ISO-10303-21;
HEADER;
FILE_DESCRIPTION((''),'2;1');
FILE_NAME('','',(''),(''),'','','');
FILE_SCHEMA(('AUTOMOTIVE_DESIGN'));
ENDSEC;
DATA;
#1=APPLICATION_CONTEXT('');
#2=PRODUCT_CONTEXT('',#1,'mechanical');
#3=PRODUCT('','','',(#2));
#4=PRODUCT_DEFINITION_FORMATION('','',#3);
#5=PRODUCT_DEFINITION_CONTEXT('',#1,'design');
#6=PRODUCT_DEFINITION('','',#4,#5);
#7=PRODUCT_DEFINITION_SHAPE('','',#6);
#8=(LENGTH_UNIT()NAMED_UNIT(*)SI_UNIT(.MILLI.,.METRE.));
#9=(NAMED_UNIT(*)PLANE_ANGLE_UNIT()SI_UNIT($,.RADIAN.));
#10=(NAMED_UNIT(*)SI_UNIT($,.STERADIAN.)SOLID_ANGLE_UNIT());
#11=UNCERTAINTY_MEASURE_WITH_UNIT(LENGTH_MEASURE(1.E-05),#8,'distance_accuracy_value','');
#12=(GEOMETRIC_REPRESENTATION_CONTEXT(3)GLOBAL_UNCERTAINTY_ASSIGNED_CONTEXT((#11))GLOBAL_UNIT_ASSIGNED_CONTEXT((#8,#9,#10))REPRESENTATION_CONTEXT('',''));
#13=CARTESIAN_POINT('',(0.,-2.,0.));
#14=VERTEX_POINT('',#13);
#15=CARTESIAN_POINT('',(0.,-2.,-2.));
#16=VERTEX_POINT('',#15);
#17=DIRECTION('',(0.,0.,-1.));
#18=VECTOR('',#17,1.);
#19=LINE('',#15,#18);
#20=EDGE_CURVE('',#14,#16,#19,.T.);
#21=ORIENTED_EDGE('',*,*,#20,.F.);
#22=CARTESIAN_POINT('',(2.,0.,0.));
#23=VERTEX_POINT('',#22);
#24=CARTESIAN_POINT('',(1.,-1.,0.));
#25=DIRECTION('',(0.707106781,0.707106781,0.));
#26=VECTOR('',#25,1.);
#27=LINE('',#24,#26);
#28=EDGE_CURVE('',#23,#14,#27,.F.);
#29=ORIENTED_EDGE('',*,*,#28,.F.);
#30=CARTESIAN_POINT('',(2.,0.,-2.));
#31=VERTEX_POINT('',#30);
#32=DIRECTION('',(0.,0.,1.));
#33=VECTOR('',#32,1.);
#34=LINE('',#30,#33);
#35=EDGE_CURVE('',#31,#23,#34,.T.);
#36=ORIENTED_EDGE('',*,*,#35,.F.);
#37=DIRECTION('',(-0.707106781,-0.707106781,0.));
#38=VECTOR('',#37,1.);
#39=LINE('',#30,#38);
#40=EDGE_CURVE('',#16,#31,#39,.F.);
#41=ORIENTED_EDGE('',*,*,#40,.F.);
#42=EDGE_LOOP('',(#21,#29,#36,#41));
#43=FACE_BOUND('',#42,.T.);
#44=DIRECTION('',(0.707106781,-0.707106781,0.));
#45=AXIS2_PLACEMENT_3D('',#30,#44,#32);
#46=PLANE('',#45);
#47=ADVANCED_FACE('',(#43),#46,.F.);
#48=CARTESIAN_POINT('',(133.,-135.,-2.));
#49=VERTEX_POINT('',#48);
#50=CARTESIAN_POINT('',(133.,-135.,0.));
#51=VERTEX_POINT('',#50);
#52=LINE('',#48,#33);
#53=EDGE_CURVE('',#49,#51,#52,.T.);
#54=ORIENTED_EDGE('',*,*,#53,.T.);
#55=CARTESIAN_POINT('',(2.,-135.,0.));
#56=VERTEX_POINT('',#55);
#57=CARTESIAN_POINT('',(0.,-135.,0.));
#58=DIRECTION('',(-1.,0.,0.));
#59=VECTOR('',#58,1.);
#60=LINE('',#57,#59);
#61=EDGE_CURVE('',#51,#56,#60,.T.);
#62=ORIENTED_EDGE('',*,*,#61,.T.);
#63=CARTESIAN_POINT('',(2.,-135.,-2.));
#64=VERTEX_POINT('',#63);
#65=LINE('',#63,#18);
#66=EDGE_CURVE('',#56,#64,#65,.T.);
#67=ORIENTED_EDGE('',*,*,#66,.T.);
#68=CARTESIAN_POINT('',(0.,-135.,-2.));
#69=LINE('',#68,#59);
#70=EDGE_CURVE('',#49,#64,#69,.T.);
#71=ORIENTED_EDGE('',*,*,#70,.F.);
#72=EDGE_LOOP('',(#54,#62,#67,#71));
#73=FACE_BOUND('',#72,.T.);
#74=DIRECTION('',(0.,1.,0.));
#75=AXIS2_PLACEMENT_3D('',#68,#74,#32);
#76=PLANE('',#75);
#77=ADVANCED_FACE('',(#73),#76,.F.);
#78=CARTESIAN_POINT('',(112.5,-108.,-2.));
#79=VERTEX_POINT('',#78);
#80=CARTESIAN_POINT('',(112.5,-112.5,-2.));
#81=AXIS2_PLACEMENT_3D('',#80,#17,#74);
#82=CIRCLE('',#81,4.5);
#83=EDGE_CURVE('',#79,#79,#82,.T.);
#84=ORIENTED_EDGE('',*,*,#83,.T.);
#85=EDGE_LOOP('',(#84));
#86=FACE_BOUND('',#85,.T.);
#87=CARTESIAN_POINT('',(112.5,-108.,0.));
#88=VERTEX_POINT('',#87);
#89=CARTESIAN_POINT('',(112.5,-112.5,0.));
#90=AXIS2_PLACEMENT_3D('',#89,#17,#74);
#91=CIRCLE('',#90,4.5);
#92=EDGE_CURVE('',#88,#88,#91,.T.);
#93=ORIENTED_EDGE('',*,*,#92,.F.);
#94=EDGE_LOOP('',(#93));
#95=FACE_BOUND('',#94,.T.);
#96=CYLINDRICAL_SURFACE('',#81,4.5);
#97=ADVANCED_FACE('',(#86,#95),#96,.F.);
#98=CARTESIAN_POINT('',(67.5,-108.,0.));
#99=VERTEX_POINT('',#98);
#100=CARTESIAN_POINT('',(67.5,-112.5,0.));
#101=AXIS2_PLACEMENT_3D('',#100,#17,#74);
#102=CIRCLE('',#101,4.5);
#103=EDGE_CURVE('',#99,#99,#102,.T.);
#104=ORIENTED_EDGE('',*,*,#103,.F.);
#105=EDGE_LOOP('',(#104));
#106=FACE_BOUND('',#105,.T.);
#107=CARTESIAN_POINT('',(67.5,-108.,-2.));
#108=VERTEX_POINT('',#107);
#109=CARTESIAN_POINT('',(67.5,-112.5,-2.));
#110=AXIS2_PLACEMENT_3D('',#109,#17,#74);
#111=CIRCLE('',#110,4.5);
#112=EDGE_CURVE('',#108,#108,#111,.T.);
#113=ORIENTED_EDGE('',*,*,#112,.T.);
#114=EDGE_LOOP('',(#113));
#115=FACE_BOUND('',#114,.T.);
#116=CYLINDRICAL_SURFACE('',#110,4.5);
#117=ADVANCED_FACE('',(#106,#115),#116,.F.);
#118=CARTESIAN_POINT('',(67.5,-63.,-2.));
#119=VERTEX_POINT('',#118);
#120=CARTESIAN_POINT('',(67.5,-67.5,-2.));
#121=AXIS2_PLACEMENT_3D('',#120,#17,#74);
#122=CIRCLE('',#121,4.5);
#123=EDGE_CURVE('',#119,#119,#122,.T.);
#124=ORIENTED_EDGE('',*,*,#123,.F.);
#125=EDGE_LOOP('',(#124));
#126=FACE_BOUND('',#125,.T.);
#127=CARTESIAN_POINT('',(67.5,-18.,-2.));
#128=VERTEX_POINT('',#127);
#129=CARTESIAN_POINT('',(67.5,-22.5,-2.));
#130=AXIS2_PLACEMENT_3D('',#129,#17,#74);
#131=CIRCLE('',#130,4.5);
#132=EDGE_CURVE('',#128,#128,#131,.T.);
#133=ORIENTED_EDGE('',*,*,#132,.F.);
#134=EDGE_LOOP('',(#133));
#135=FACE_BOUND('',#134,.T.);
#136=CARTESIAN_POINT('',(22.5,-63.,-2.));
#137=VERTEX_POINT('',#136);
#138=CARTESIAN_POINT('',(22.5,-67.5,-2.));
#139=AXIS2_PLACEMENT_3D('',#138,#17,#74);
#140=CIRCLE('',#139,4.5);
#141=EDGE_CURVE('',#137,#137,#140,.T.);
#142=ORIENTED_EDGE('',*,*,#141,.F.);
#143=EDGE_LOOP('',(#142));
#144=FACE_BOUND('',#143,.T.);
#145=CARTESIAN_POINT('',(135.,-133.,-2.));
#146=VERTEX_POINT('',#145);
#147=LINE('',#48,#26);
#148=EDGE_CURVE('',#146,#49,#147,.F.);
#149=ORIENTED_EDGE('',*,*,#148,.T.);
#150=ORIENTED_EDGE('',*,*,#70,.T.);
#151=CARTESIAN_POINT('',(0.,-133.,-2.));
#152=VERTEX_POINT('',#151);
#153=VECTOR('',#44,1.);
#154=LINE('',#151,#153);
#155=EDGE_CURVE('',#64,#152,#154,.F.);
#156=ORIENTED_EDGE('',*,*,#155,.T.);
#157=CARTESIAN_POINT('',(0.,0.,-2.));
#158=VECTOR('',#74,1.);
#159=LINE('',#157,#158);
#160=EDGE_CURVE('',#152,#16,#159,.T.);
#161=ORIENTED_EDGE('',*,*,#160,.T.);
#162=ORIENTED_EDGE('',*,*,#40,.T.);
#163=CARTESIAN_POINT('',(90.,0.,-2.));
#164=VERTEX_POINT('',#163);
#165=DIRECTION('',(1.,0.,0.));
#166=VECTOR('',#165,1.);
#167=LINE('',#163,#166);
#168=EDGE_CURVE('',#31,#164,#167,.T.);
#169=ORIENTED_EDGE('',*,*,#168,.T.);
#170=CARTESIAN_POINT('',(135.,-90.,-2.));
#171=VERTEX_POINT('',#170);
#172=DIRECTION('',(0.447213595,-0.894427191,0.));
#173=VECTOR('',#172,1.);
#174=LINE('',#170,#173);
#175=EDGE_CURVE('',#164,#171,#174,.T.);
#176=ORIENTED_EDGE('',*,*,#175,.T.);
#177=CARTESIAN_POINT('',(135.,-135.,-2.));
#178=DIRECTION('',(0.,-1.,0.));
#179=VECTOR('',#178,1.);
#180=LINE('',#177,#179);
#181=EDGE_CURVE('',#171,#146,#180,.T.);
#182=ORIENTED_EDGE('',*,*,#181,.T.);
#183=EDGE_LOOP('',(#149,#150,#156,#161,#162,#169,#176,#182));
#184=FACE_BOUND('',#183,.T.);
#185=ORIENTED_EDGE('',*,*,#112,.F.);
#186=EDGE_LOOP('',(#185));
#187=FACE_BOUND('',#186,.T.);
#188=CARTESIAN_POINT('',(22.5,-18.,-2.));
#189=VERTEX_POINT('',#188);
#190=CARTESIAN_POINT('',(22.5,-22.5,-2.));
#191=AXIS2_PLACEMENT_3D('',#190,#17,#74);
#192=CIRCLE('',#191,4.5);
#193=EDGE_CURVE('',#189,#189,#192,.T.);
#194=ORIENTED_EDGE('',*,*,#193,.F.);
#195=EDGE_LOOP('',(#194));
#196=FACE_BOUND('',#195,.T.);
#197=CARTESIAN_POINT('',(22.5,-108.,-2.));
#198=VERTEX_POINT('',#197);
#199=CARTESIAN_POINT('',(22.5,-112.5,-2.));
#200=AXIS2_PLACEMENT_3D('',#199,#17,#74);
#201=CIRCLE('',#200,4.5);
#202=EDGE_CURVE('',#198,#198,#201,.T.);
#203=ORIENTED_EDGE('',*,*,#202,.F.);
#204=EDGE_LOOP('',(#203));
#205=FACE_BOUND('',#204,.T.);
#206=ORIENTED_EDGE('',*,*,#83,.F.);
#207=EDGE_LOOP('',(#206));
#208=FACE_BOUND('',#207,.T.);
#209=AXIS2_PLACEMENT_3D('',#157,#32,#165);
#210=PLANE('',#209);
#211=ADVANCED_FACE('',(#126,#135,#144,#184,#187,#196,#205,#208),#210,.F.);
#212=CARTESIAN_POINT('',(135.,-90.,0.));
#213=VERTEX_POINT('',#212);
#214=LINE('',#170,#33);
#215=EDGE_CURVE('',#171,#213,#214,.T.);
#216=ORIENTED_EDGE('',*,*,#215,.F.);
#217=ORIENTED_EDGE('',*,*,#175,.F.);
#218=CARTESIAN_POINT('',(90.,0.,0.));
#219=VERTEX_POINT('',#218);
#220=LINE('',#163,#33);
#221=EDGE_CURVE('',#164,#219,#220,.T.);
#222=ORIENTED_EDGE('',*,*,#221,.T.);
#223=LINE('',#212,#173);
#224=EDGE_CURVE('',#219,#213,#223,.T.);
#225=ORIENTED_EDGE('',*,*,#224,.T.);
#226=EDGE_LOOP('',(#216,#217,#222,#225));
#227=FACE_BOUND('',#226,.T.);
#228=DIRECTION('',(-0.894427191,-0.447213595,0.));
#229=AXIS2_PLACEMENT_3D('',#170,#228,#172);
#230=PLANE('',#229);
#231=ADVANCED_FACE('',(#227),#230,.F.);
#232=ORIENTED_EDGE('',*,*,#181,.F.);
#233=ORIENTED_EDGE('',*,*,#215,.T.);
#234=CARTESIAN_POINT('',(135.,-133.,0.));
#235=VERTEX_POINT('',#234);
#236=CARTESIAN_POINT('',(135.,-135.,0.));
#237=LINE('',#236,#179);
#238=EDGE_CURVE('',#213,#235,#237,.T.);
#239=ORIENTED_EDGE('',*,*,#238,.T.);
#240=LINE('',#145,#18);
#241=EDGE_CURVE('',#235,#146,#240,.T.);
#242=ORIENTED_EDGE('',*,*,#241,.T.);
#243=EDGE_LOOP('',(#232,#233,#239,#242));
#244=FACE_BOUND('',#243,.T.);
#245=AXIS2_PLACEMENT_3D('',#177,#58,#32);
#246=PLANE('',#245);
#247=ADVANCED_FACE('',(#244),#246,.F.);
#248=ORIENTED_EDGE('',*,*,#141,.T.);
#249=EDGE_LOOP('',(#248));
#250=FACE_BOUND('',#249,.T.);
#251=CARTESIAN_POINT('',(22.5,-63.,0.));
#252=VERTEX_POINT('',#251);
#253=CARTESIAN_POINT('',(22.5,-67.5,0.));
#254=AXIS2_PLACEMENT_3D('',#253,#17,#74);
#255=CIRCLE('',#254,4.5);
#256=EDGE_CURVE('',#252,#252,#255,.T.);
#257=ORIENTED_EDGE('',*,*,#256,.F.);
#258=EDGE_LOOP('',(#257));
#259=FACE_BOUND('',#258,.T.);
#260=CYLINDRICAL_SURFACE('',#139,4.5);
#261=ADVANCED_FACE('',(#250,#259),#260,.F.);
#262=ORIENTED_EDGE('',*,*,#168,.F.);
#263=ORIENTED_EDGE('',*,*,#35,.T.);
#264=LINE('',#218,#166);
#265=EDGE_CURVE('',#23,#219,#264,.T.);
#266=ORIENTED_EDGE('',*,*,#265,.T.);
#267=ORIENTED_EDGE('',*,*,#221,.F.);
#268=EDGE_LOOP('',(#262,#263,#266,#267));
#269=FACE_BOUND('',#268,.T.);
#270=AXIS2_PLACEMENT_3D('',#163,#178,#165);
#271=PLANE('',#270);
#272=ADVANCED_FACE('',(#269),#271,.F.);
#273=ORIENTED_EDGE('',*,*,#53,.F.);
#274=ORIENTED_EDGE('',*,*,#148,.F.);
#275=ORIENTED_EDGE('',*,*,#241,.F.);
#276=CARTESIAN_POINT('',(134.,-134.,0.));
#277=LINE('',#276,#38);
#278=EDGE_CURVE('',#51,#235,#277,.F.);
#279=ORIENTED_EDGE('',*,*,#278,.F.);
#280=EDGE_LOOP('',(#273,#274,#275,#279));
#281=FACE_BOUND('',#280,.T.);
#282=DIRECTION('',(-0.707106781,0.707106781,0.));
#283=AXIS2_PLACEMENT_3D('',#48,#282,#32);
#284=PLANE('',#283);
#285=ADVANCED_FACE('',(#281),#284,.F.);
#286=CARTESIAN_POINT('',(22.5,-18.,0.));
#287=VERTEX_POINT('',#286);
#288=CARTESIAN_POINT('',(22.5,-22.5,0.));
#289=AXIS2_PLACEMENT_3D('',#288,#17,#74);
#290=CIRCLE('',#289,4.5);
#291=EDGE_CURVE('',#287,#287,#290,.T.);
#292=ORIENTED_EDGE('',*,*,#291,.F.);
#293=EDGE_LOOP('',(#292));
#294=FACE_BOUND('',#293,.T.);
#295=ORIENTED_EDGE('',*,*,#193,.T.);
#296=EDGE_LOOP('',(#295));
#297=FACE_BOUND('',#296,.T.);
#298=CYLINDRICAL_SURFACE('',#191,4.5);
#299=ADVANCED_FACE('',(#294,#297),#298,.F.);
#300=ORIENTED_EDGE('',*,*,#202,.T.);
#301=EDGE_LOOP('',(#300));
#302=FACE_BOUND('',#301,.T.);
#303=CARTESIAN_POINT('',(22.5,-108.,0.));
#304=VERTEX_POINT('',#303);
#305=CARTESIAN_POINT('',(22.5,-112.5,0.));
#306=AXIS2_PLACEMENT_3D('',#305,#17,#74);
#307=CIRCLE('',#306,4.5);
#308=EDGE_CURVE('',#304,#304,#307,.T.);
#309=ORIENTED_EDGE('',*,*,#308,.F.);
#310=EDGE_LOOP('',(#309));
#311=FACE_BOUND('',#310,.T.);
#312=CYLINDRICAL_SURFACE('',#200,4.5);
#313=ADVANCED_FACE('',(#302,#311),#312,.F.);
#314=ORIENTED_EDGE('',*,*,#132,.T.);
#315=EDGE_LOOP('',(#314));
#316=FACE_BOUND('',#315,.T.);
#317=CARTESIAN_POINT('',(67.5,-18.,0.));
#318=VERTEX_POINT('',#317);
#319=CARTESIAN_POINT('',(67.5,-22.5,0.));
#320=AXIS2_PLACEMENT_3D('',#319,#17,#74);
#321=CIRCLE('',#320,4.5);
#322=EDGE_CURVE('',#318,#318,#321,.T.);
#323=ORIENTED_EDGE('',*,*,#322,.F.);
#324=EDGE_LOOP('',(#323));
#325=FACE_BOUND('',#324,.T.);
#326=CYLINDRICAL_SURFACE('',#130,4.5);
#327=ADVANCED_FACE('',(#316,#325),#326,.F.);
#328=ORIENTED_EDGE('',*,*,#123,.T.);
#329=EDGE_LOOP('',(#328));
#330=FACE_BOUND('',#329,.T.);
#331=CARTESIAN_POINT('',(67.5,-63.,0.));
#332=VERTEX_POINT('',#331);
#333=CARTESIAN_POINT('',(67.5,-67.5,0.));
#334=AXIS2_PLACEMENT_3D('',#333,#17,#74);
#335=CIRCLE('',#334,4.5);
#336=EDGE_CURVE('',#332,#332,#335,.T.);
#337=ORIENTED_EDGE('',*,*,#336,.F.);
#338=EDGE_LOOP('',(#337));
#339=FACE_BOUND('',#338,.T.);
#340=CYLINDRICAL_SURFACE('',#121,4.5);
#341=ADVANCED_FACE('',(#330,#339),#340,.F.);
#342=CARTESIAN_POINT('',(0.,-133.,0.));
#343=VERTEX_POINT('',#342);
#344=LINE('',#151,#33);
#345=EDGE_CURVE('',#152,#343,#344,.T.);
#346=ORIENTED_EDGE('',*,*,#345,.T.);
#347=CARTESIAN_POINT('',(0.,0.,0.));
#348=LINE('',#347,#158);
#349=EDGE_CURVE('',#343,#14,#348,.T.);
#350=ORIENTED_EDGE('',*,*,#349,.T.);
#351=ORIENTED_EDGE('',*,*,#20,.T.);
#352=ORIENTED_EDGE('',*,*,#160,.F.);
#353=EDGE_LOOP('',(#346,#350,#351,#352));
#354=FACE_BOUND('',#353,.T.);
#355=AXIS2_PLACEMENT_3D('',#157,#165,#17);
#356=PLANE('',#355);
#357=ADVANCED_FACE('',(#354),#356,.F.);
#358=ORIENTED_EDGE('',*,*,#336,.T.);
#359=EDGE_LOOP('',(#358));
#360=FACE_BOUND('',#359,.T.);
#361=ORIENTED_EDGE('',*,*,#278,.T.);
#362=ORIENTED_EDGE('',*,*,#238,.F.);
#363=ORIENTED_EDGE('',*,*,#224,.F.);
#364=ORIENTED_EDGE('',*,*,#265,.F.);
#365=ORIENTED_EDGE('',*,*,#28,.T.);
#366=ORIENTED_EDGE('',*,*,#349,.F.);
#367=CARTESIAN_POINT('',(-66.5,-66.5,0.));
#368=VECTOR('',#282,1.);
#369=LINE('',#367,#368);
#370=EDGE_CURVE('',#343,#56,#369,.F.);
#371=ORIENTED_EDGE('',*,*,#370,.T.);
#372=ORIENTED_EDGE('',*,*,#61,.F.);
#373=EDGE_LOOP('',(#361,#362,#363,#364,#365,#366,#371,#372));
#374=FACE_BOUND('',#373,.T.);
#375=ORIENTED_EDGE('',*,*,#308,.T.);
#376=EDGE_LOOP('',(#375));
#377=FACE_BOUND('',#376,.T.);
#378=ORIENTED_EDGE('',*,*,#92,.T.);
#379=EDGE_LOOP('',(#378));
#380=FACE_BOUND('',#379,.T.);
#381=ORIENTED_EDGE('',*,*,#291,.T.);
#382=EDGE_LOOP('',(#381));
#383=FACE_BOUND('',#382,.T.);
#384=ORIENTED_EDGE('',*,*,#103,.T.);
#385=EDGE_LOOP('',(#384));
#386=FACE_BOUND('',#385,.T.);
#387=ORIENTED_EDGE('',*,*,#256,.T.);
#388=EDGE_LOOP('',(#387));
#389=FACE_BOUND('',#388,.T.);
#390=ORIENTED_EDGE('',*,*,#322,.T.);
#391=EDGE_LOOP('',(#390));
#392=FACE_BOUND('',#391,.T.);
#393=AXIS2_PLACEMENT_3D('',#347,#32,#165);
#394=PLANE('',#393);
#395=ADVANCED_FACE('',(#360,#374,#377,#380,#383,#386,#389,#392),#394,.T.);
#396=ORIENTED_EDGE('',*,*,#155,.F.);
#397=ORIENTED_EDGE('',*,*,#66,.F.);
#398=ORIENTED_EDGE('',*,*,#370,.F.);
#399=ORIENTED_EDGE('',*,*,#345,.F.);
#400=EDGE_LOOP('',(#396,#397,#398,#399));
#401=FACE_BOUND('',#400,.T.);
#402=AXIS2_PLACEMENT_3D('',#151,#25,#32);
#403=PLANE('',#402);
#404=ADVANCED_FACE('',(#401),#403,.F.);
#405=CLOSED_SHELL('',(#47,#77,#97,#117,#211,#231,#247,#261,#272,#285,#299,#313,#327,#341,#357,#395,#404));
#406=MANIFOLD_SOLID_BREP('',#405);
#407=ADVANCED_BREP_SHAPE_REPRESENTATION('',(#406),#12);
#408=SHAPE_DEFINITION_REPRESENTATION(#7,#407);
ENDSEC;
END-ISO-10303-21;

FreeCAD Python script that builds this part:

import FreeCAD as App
import Part
import Sketcher
from FreeCAD import Vector
Q = App.Units.Quantity


def edges_at(feature, points):
    """Names of the edges that pass closest to the given points."""
    edges = feature.Shape.Edges
    near = lambda p: min(range(len(edges)), key=lambda i: edges[i].distToShape(Part.Vertex(*p))[0])
    return sorted({f"Edge{near(p) + 1}" for p in points})


def add_polygon(sketch, points):
    """Adds a closed chain of lines whose ends are joined by coincident constraints."""
    first, n = sketch.GeometryCount, len(points)
    for a, b in zip(points, points[1:] + points[:1]):
        sketch.addGeometry(Part.LineSegment(App.Vector(*a, 0), App.Vector(*b, 0)), False)
    for i in range(n):
        sketch.addConstraint(Sketcher.Constraint("Coincident", first + i, 2, first + (i + 1) % n, 1))

doc = App.newDocument("Part")
body = doc.addObject("PartDesign::Body", "Body")

# Sketch on XY plane
sketch1 = body.newObject("Sketcher::SketchObject", "Sketch")
sketch1.AttachmentSupport = (doc.getObject("XY_Plane"), [""])
sketch1.MapMode = "FlatFace"
add_polygon(sketch1, [(0, -135), (0, 0), (90, 0), (135, -90), (135, -135)])  # lines 0-4
sketch1.addConstraint([
    Sketcher.Constraint("Vertical", 0),
    Sketcher.Constraint("Horizontal", 1),
    Sketcher.Constraint("Vertical", 3),
    Sketcher.Constraint("Horizontal", 4),
    Sketcher.Constraint("Coincident", 0, 2, -1, 1),
    Sketcher.Constraint("Equal", 4, 0),
    Sketcher.Constraint("DistanceX", 1, 1, 1, 2, Q("90 mm")),
    Sketcher.Constraint("DistanceX", 4, 2, 4, 1, Q("135 mm")),
    Sketcher.Constraint("DistanceY", 3, 2, 3, 1, Q("45 mm")),
])
pad1 = body.newObject("PartDesign::Pad", "Pad")
pad1.Profile = sketch1
pad1.Length = 2
pad1.Reversed = True

# Sketch on XY plane
sketch2 = body.newObject("Sketcher::SketchObject", "Sketch001")
sketch2.AttachmentSupport = (doc.getObject("XY_Plane"), [""])
sketch2.MapMode = "FlatFace"
sketch2.AttachmentOffset = App.Placement(Vector(0, 0, -2), App.Rotation())
sketch2.addGeometry([
    Part.Circle(Vector(67.5, -112.5, 0), Vector(0, 0, 1), 4.5),  # 0
    Part.Circle(Vector(22.5, -112.5, 0), Vector(0, 0, 1), 4.5),  # 1
    Part.Circle(Vector(22.5, -67.5, 0), Vector(0, 0, 1), 4.5),  # 2
    Part.Circle(Vector(22.5, -22.5, 0), Vector(0, 0, 1), 4.5),  # 3
    Part.Circle(Vector(112.5, -112.5, 0), Vector(0, 0, 1), 4.5),  # 4
    Part.Circle(Vector(67.5, -67.5, 0), Vector(0, 0, 1), 4.5),  # 5
    Part.Circle(Vector(67.5, -22.5, 0), Vector(0, 0, 1), 4.5),  # 6
], False)
sketch2.addConstraint([
    Sketcher.Constraint("Equal", 0, 1),
    Sketcher.Constraint("Equal", 1, 2),
    Sketcher.Constraint("Equal", 2, 3),
    Sketcher.Constraint("Equal", 3, 4),
    Sketcher.Constraint("Equal", 4, 5),
    Sketcher.Constraint("Equal", 5, 6),
    Sketcher.Constraint("Horizontal", 0, 3, 1, 3),
    Sketcher.Constraint("Horizontal", 1, 3, 4, 3),
    Sketcher.Constraint("Horizontal", 2, 3, 5, 3),
    Sketcher.Constraint("Horizontal", 3, 3, 6, 3),
    Sketcher.Constraint("Vertical", 1, 3, 2, 3),
    Sketcher.Constraint("Vertical", 2, 3, 3, 3),
    Sketcher.Constraint("Vertical", 0, 3, 5, 3),
    Sketcher.Constraint("Vertical", 5, 3, 6, 3),
    Sketcher.Constraint("Diameter", 0, Q("9 mm")),
    Sketcher.Constraint("DistanceX", 1, 3, 0, 3, Q("45 mm")),
    Sketcher.Constraint("DistanceY", 1, 3, 2, 3, Q("45 mm")),
    Sketcher.Constraint("DistanceY", 2, 3, 3, 3, Q("45 mm")),
    Sketcher.Constraint("DistanceX", 0, 3, 4, 3, Q("45 mm")),
    Sketcher.Constraint("DistanceX", -1, 1, 0, 3, Q("67.5 mm")),
    Sketcher.Constraint("DistanceY", 0, 3, -1, 1, Q("112.5 mm")),
])
doc.recompute()
hole = body.newObject("PartDesign::Hole", "Hole")
hole.Profile = sketch2
hole.ThreadType = "None"
hole.Diameter = 9
hole.DepthType = "ThroughAll"
hole.Reversed = True
doc.recompute()

chamfer = body.newObject("PartDesign::Chamfer", "Chamfer")
chamfer.Base = (hole, edges_at(hole, [(0, 0, -1), (0, -135, -1), (135, -135, -1)]))
chamfer.Size = 2

doc.recompute()
